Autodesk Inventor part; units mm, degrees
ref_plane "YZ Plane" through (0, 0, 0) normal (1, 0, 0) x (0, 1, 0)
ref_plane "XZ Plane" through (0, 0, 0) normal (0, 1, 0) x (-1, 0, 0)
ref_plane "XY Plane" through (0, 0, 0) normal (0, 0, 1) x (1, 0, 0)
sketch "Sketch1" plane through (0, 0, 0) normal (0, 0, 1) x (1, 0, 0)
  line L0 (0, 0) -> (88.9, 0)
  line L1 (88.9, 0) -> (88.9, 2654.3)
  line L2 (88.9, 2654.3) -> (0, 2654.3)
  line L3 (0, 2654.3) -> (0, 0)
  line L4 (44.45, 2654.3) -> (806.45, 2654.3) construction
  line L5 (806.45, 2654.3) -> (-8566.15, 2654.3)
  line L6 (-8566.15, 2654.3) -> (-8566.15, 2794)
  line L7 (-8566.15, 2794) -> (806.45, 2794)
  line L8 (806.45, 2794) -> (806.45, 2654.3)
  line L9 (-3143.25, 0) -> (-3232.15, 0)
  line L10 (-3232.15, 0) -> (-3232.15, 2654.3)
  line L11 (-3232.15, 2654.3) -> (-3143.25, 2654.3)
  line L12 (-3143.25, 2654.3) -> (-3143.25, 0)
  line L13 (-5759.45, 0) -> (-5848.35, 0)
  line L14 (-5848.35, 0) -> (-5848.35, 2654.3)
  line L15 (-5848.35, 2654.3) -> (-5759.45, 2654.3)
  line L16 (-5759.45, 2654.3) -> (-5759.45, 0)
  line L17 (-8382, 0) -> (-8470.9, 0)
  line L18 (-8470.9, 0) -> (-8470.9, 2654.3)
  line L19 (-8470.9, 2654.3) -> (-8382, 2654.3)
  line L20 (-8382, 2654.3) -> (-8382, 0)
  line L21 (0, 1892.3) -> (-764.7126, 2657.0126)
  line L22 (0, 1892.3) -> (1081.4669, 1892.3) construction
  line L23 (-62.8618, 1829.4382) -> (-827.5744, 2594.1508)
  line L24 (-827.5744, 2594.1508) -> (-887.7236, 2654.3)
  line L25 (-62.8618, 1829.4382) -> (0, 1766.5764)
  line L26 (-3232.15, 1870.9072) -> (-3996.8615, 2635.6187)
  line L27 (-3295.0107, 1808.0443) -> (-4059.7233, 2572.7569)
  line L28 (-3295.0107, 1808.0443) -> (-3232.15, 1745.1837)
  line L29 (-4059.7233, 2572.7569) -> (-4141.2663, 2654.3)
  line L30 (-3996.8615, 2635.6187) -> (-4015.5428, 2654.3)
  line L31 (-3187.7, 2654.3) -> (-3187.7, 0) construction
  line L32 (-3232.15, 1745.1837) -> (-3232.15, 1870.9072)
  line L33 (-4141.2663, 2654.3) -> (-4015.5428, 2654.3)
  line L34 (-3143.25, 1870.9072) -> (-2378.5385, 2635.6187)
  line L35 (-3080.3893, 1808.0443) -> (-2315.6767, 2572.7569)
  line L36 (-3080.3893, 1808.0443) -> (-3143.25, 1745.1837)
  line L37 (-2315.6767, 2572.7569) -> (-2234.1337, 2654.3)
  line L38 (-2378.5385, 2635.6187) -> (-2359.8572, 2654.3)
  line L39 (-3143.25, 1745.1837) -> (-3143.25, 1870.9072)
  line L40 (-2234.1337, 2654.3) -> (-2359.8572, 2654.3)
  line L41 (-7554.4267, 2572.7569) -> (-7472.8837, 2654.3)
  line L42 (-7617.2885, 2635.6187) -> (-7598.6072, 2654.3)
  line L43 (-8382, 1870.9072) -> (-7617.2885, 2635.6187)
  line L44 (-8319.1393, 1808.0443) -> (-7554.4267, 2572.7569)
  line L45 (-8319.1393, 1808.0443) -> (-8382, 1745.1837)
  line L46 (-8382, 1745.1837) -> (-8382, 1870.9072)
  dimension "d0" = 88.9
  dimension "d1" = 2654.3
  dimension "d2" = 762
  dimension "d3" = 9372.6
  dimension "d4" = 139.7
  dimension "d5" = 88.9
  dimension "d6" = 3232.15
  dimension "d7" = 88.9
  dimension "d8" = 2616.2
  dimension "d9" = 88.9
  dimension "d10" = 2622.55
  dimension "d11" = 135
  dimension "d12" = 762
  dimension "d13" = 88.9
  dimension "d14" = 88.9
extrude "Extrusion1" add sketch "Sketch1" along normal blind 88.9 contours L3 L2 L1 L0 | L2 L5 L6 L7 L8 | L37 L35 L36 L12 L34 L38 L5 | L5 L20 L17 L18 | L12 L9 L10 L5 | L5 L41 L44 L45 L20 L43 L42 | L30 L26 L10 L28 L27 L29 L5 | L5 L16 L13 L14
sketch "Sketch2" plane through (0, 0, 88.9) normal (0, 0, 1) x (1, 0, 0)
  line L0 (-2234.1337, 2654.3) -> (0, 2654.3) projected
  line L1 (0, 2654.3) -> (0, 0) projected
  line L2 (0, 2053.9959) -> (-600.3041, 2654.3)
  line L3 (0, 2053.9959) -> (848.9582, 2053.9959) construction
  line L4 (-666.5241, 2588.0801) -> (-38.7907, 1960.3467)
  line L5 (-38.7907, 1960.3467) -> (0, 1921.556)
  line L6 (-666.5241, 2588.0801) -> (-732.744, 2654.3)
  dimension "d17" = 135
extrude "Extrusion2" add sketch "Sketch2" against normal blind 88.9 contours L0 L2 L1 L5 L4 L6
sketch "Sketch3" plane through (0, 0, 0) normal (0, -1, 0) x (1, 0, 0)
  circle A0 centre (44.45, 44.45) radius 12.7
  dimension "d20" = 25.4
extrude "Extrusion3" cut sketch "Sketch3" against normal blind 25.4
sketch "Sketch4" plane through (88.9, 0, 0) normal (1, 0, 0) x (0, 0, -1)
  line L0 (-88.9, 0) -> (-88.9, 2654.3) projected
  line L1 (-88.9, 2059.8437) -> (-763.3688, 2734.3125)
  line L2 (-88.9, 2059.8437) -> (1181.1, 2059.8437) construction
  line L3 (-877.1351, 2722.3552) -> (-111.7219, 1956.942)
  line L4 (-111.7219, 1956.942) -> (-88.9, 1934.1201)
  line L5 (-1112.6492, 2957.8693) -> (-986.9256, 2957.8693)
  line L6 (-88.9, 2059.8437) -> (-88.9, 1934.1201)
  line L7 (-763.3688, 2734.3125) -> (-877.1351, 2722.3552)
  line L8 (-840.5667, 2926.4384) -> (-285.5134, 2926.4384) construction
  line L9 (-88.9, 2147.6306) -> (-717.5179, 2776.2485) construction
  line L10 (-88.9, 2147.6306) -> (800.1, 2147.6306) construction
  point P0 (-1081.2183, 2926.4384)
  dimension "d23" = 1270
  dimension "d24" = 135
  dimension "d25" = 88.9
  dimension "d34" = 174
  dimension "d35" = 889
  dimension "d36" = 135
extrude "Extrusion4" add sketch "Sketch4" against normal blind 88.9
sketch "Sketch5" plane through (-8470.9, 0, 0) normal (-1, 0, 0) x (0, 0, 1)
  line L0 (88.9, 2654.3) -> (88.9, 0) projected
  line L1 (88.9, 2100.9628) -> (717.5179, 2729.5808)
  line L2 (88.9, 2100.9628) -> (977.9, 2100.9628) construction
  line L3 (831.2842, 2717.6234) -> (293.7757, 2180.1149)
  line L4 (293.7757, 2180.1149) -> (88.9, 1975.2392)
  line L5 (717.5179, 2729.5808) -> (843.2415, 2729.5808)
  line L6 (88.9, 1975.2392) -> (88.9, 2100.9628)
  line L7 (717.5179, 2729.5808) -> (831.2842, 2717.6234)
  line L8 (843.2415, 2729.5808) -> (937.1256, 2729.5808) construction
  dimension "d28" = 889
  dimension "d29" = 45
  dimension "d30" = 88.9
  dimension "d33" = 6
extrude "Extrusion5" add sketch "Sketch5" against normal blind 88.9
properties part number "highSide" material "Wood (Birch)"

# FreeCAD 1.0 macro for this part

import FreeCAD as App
import Part
import Sketcher
Q = App.Units.Quantity

doc = App.newDocument("Part")
params = doc.addObject("Spreadsheet::Sheet", "Params")
for row, (alias, value) in enumerate([
    ("sketch1_width", "369 in"),
    ("sketch1_width2", "3.5 in"),
    ("sketch1_height", "104.5 in"),
    ("sketch1_height2", "5.5 in"),
    ("sketch1_width3", "28.25 in"),
    ("pad1_length", "3.5 in"),
    ("pad2_length", "3.5 in"),
    ("sketch3_diameter", "1 in"),
    ("pocket1_length", "1 in"),
    ("pad3_length", "3.5 in"),
    ("sketch5_length", "35 in"),
    ("pad4_length", "3.5 in"),
], start=1):
    params.set(f"A{row}", alias)
    params.set(f"B{row}", "=" + value)
    params.setAlias(f"B{row}", alias)

body = doc.addObject("PartDesign::Body", "Body")

# Sketch on XY plane
sketch1 = body.newObject("Sketcher::SketchObject", "Sketch")
sketch1.AttachmentSupport = (doc.getObject("XY_Plane"), [""])
sketch1.MapMode = "FlatFace"
sketch1.addGeometry(Part.LineSegment(App.Vector(0, 0, 0), App.Vector(89, 0, 0)), False)
sketch1.addGeometry(Part.LineSegment(App.Vector(89, 0, 0), App.Vector(89, 2654, 0)), False)
sketch1.addGeometry(Part.LineSegment(App.Vector(89, 2654, 0), App.Vector(806, 2654, 0)), False)
sketch1.addGeometry(Part.LineSegment(App.Vector(806, 2654, 0), App.Vector(806, 2794, 0)), False)
sketch1.addGeometry(Part.LineSegment(App.Vector(806, 2794, 0), App.Vector(-8566, 2794, 0)), False)
sketch1.addGeometry(Part.LineSegment(App.Vector(-8566, 2794, 0), App.Vector(-8566, 2654, 0)), False)
sketch1.addGeometry(Part.LineSegment(App.Vector(-8566, 2654, 0), App.Vector(-8471, 2654, 0)), False)
sketch1.addGeometry(Part.LineSegment(App.Vector(-8471, 2654, 0), App.Vector(-8471, 0, 0)), False)
sketch1.addGeometry(Part.LineSegment(App.Vector(-8471, 0, 0), App.Vector(-8382, 0, 0)), False)
sketch1.addGeometry(Part.LineSegment(App.Vector(-8382, 0, 0), App.Vector(-8382, 1745, 0)), False)
sketch1.addGeometry(Part.LineSegment(App.Vector(-8382, 1745, 0), App.Vector(-8319, 1808, 0)), False)
sketch1.addGeometry(Part.LineSegment(App.Vector(-8319, 1808, 0), App.Vector(-7554, 2573, 0)), False)
sketch1.addGeometry(Part.LineSegment(App.Vector(-7554, 2573, 0), App.Vector(-7473, 2654, 0)), False)
sketch1.addGeometry(Part.LineSegment(App.Vector(-7473, 2654, 0), App.Vector(-5848, 2654, 0)), False)
sketch1.addGeometry(Part.LineSegment(App.Vector(-5848, 2654, 0), App.Vector(-5848, 0, 0)), False)
sketch1.addGeometry(Part.LineSegment(App.Vector(-5848, 0, 0), App.Vector(-5759, 0, 0)), False)
sketch1.addGeometry(Part.LineSegment(App.Vector(-5759, 0, 0), App.Vector(-5759, 2654, 0)), False)
sketch1.addGeometry(Part.LineSegment(App.Vector(-5759, 2654, 0), App.Vector(-4141, 2654, 0)), False)
sketch1.addGeometry(Part.LineSegment(App.Vector(-4141, 2654, 0), App.Vector(-4060, 2573, 0)), False)
sketch1.addGeometry(Part.LineSegment(App.Vector(-4060, 2573, 0), App.Vector(-3295, 1808, 0)), False)
sketch1.addGeometry(Part.LineSegment(App.Vector(-3295, 1808, 0), App.Vector(-3232, 1745, 0)), False)
sketch1.addGeometry(Part.LineSegment(App.Vector(-3232, 1745, 0), App.Vector(-3232, 0, 0)), False)
sketch1.addGeometry(Part.LineSegment(App.Vector(-3232, 0, 0), App.Vector(-3143, 0, 0)), False)
sketch1.addGeometry(Part.LineSegment(App.Vector(-3143, 0, 0), App.Vector(-3143, 1745, 0)), False)
sketch1.addGeometry(Part.LineSegment(App.Vector(-3143, 1745, 0), App.Vector(-3080, 1808, 0)), False)
sketch1.addGeometry(Part.LineSegment(App.Vector(-3080, 1808, 0), App.Vector(-2316, 2573, 0)), False)
sketch1.addGeometry(Part.LineSegment(App.Vector(-2316, 2573, 0), App.Vector(-2234, 2654, 0)), False)
sketch1.addGeometry(Part.LineSegment(App.Vector(-2234, 2654, 0), App.Vector(0, 2654, 0)), False)
sketch1.addGeometry(Part.LineSegment(App.Vector(0, 2654, 0), App.Vector(0, 0, 0)), False)
sketch1.addGeometry(Part.LineSegment(App.Vector(-3143, 2654, 0), App.Vector(-2360, 2654, 0)), False)
sketch1.addGeometry(Part.LineSegment(App.Vector(-2360, 2654, 0), App.Vector(-3143, 1871, 0)), False)
sketch1.addGeometry(Part.LineSegment(App.Vector(-3143, 1871, 0), App.Vector(-3143, 2654, 0)), False)
sketch1.addGeometry(Part.LineSegment(App.Vector(-4016, 2654, 0), App.Vector(-3232, 2654, 0)), False)
sketch1.addGeometry(Part.LineSegment(App.Vector(-3232, 2654, 0), App.Vector(-3232, 1871, 0)), False)
sketch1.addGeometry(Part.LineSegment(App.Vector(-3232, 1871, 0), App.Vector(-4016, 2654, 0)), False)
sketch1.addGeometry(Part.LineSegment(App.Vector(-8382, 2654, 0), App.Vector(-7599, 2654, 0)), False)
sketch1.addGeometry(Part.LineSegment(App.Vector(-7599, 2654, 0), App.Vector(-8382, 1871, 0)), False)
sketch1.addGeometry(Part.LineSegment(App.Vector(-8382, 1871, 0), App.Vector(-8382, 2654, 0)), False)
sketch1.addConstraint(Sketcher.Constraint("Coincident", 0, 2, 1, 1))
sketch1.addConstraint(Sketcher.Constraint("Coincident", 1, 2, 2, 1))
sketch1.addConstraint(Sketcher.Constraint("Coincident", 2, 2, 3, 1))
sketch1.addConstraint(Sketcher.Constraint("Coincident", 3, 2, 4, 1))
sketch1.addConstraint(Sketcher.Constraint("Coincident", 4, 2, 5, 1))
sketch1.addConstraint(Sketcher.Constraint("Coincident", 5, 2, 6, 1))
sketch1.addConstraint(Sketcher.Constraint("Coincident", 6, 2, 7, 1))
sketch1.addConstraint(Sketcher.Constraint("Coincident", 7, 2, 8, 1))
sketch1.addConstraint(Sketcher.Constraint("Coincident", 8, 2, 9, 1))
sketch1.addConstraint(Sketcher.Constraint("Coincident", 9, 2, 10, 1))
sketch1.addConstraint(Sketcher.Constraint("Coincident", 10, 2, 11, 1))
sketch1.addConstraint(Sketcher.Constraint("Coincident", 11, 2, 12, 1))
sketch1.addConstraint(Sketcher.Constraint("Coincident", 12, 2, 13, 1))
sketch1.addConstraint(Sketcher.Constraint("Coincident", 13, 2, 14, 1))
sketch1.addConstraint(Sketcher.Constraint("Coincident", 14, 2, 15, 1))
sketch1.addConstraint(Sketcher.Constraint("Coincident", 15, 2, 16, 1))
sketch1.addConstraint(Sketcher.Constraint("Coincident", 16, 2, 17, 1))
sketch1.addConstraint(Sketcher.Constraint("Coincident", 17, 2, 18, 1))
sketch1.addConstraint(Sketcher.Constraint("Coincident", 18, 2, 19, 1))
sketch1.addConstraint(Sketcher.Constraint("Coincident", 19, 2, 20, 1))
sketch1.addConstraint(Sketcher.Constraint("Coincident", 20, 2, 21, 1))
sketch1.addConstraint(Sketcher.Constraint("Coincident", 21, 2, 22, 1))
sketch1.addConstraint(Sketcher.Constraint("Coincident", 22, 2, 23, 1))
sketch1.addConstraint(Sketcher.Constraint("Coincident", 23, 2, 24, 1))
sketch1.addConstraint(Sketcher.Constraint("Coincident", 24, 2, 25, 1))
sketch1.addConstraint(Sketcher.Constraint("Coincident", 25, 2, 26, 1))
sketch1.addConstraint(Sketcher.Constraint("Coincident", 26, 2, 27, 1))
sketch1.addConstraint(Sketcher.Constraint("Coincident", 27, 2, 28, 1))
sketch1.addConstraint(Sketcher.Constraint("Coincident", 28, 2, 0, 1))
sketch1.addConstraint(Sketcher.Constraint("Coincident", 29, 2, 30, 1))
sketch1.addConstraint(Sketcher.Constraint("Coincident", 30, 2, 31, 1))
sketch1.addConstraint(Sketcher.Constraint("Coincident", 31, 2, 29, 1))
sketch1.addConstraint(Sketcher.Constraint("Coincident", 32, 2, 33, 1))
sketch1.addConstraint(Sketcher.Constraint("Coincident", 33, 2, 34, 1))
sketch1.addConstraint(Sketcher.Constraint("Coincident", 34, 2, 32, 1))
sketch1.addConstraint(Sketcher.Constraint("Coincident", 35, 2, 36, 1))
sketch1.addConstraint(Sketcher.Constraint("Coincident", 36, 2, 37, 1))
sketch1.addConstraint(Sketcher.Constraint("Coincident", 37, 2, 35, 1))
sketch1.addConstraint(Sketcher.Constraint("Horizontal", 0))
sketch1.addConstraint(Sketcher.Constraint("Vertical", 1))
sketch1.addConstraint(Sketcher.Constraint("Horizontal", 2))
sketch1.addConstraint(Sketcher.Constraint("Vertical", 3))
sketch1.addConstraint(Sketcher.Constraint("Horizontal", 4))
sketch1.addConstraint(Sketcher.Constraint("Vertical", 5))
sketch1.addConstraint(Sketcher.Constraint("Horizontal", 6))
sketch1.addConstraint(Sketcher.Constraint("Vertical", 7))
sketch1.addConstraint(Sketcher.Constraint("Horizontal", 8))
sketch1.addConstraint(Sketcher.Constraint("Vertical", 9))
sketch1.addConstraint(Sketcher.Constraint("Horizontal", 13))
sketch1.addConstraint(Sketcher.Constraint("Vertical", 14))
sketch1.addConstraint(Sketcher.Constraint("Horizontal", 15))
sketch1.addConstraint(Sketcher.Constraint("Vertical", 16))
sketch1.addConstraint(Sketcher.Constraint("Horizontal", 17))
sketch1.addConstraint(Sketcher.Constraint("Vertical", 21))
sketch1.addConstraint(Sketcher.Constraint("Horizontal", 22))
sketch1.addConstraint(Sketcher.Constraint("Vertical", 23))
sketch1.addConstraint(Sketcher.Constraint("Horizontal", 27))
sketch1.addConstraint(Sketcher.Constraint("Vertical", 28))
sketch1.addConstraint(Sketcher.Constraint("Horizontal", 29))
sketch1.addConstraint(Sketcher.Constraint("Vertical", 31))
sketch1.addConstraint(Sketcher.Constraint("Horizontal", 32))
sketch1.addConstraint(Sketcher.Constraint("Vertical", 33))
sketch1.addConstraint(Sketcher.Constraint("Horizontal", 35))
sketch1.addConstraint(Sketcher.Constraint("Vertical", 37))
sketch1.addConstraint(Sketcher.Constraint("Coincident", 28, 2, -1, 1))
sketch1.addConstraint(Sketcher.Constraint("PointOnObject", 7, 2, -1))
sketch1.addConstraint(Sketcher.Constraint("PointOnObject", 14, 2, -1))
sketch1.addConstraint(Sketcher.Constraint("PointOnObject", 21, 2, -1))
sketch1.addConstraint(Sketcher.Constraint("Parallel", 10, 11))
sketch1.addConstraint(Sketcher.Constraint("Parallel", 11, 12))
sketch1.addConstraint(Sketcher.Constraint("Perpendicular", 12, 18))
sketch1.addConstraint(Sketcher.Constraint("Parallel", 18, 19))
sketch1.addConstraint(Sketcher.Constraint("Parallel", 19, 20))
sketch1.addConstraint(Sketcher.Constraint("Perpendicular", 20, 24))
sketch1.addConstraint(Sketcher.Constraint("Parallel", 24, 25))
sketch1.addConstraint(Sketcher.Constraint("Parallel", 25, 26))
sketch1.addConstraint(Sketcher.Constraint("Parallel", 26, 30))
sketch1.addConstraint(Sketcher.Constraint("Perpendicular", 30, 34))
sketch1.addConstraint(Sketcher.Constraint("Perpendicular", 34, 36))
sketch1.addConstraint(Sketcher.Constraint("Horizontal", 2, 2, 5, 2))
sketch1.addConstraint(Sketcher.Constraint("Horizontal", 6, 2, 12, 2))
sketch1.addConstraint(Sketcher.Constraint("Horizontal", 13, 2, 16, 2))
sketch1.addConstraint(Sketcher.Constraint("Horizontal", 11, 2, 18, 2))
sketch1.addConstraint(Sketcher.Constraint("Horizontal", 10, 2, 19, 2))
sketch1.addConstraint(Sketcher.Constraint("Horizontal", 9, 2, 20, 2))
sketch1.addConstraint(Sketcher.Constraint("Horizontal", 20, 2, 23, 2))
sketch1.addConstraint(Sketcher.Constraint("Horizontal", 19, 2, 24, 2))
sketch1.addConstraint(Sketcher.Constraint("Horizontal", 18, 2, 25, 2))
sketch1.addConstraint(Sketcher.Constraint("Horizontal", 17, 2, 26, 2))
sketch1.addConstraint(Sketcher.Constraint("Horizontal", 27, 2, 29, 2))
sketch1.addConstraint(Sketcher.Constraint("Horizontal", 31, 2, 32, 2))
sketch1.addConstraint(Sketcher.Constraint("Horizontal", 30, 2, 33, 2))
sketch1.addConstraint(Sketcher.Constraint("Horizontal", 34, 2, 35, 2))
sketch1.addConstraint(Sketcher.Constraint("Horizontal", 33, 2, 36, 2))
sketch1.addConstraint(Sketcher.Constraint("Vertical", 23, 2, 30, 2))
sketch1.addConstraint(Sketcher.Constraint("Vertical", 21, 2, 32, 2))
sketch1.addConstraint(Sketcher.Constraint("Vertical", 9, 2, 36, 2))
sketch1.addConstraint(Sketcher.Constraint("Equal", 0, 8))
sketch1.addConstraint(Sketcher.Constraint("Equal", 8, 15))
sketch1.addConstraint(Sketcher.Constraint("Equal", 15, 22))
sketch1.addConstraint(Sketcher.Constraint("Equal", 29, 32))
sketch1.addConstraint(Sketcher.Constraint("DistanceX", 4, 2, 4, 1, Q("369 in")))
sketch1.addConstraint(Sketcher.Constraint("DistanceX", 0, 1, 0, 2, Q("3.5 in")))
sketch1.addConstraint(Sketcher.Constraint("DistanceY", 1, 1, 1, 2, Q("104.5 in")))
sketch1.addConstraint(Sketcher.Constraint("DistanceY", 3, 1, 3, 2, Q("5.5 in")))
sketch1.addConstraint(Sketcher.Constraint("DistanceX", 13, 2, 20, 2, Q("103 in")))
sketch1.addConstraint(Sketcher.Constraint("DistanceX", 20, 2, -1, 1, Q("127.25 in")))
sketch1.addConstraint(Sketcher.Constraint("DistanceX", 6, 2, 13, 2, Q("103.25 in")))
sketch1.addConstraint(Sketcher.Constraint("DistanceX", 2, 1, 2, 2, Q("28.25 in")))
sketch1.addConstraint(Sketcher.Constraint("Distance", 30, Q("43.6175 in")))
sketch1.addConstraint(Sketcher.Constraint("DistanceX", 13, 1, 13, 2, Q("1624.5337 mm")))
sketch1.addConstraint(Sketcher.Constraint("DistanceX", 10, 2, 11, 2, Q("30.1068 in")))
sketch1.addConstraint(Sketcher.Constraint("DistanceX", 17, 2, 24, 2, Q("41.7668 in")))
sketch1.setExpression("Constraints[101]", "Params.sketch1_width")
sketch1.setExpression("Constraints[102]", "Params.sketch1_width2")
sketch1.setExpression("Constraints[103]", "Params.sketch1_height")
sketch1.setExpression("Constraints[104]", "Params.sketch1_height2")
sketch1.setExpression("Constraints[108]", "Params.sketch1_width3")
pad1 = body.newObject("PartDesign::Pad", "Pad")
pad1.Profile = sketch1
pad1.setExpression("Length", "Params.pad1_length")

# Sketch on XY plane
sketch2 = body.newObject("Sketcher::SketchObject", "Sketch001")
sketch2.AttachmentSupport = (doc.getObject("XY_Plane"), [""])
sketch2.MapMode = "FlatFace"
sketch2.AttachmentOffset = App.Placement(App.Vector(0, 0, 3.5 * 25.4), App.Rotation())
sketch2.addGeometry(Part.LineSegment(App.Vector(-600, 2654, 0), App.Vector(-733, 2654, 0)), False)
sketch2.addGeometry(Part.LineSegment(App.Vector(-733, 2654, 0), App.Vector(0, 1922, 0)), False)
sketch2.addGeometry(Part.LineSegment(App.Vector(0, 1922, 0), App.Vector(0, 2054, 0)), False)
sketch2.addGeometry(Part.LineSegment(App.Vector(0, 2054, 0), App.Vector(-600, 2654, 0)), False)
sketch2.addConstraint(Sketcher.Constraint("Coincident", 0, 2, 1, 1))
sketch2.addConstraint(Sketcher.Constraint("Coincident", 1, 2, 2, 1))
sketch2.addConstraint(Sketcher.Constraint("Coincident", 2, 2, 3, 1))
sketch2.addConstraint(Sketcher.Constraint("Coincident", 3, 2, 0, 1))
sketch2.addConstraint(Sketcher.Constraint("Horizontal", 0))
sketch2.addConstraint(Sketcher.Constraint("Vertical", 2))
sketch2.addConstraint(Sketcher.Constraint("PointOnObject", 1, 2, -2))
sketch2.addConstraint(Sketcher.Constraint("Parallel", 1, 3))
sketch2.addConstraint(Sketcher.Constraint("Equal", 0, 2))
sketch2.addConstraint(Sketcher.Constraint("DistanceY", -1, 1, 0, 2, Q("104.5 in")))
sketch2.addConstraint(Sketcher.Constraint("Distance", 1, Q("40.7975 in")))
sketch2.addConstraint(Sketcher.Constraint("DistanceX", 0, 2, 0, 1, Q("132.44 mm")))
pad2 = body.newObject("PartDesign::Pad", "Pad001")
pad2.Profile = sketch2
pad2.setExpression("Length", "Params.pad2_length")
pad2.Reversed = True

# Sketch on XZ plane
sketch3 = body.newObject("Sketcher::SketchObject", "Sketch002")
sketch3.AttachmentSupport = (doc.getObject("XZ_Plane"), [""])
sketch3.MapMode = "FlatFace"
sketch3.addGeometry(Part.Circle(App.Vector(44, 44, 0), App.Vector(0, 0, 1), 13), False)
sketch3.addConstraint(Sketcher.Constraint("Diameter", 0, Q("1 in")))
sketch3.addConstraint(Sketcher.Constraint("DistanceX", -1, 1, 0, 3, Q("1.75 in")))
sketch3.addConstraint(Sketcher.Constraint("DistanceY", -1, 1, 0, 3, Q("1.75 in")))
sketch3.setExpression("Constraints[0]", "Params.sketch3_diameter")
pocket1 = body.newObject("PartDesign::Pocket", "Pocket")
pocket1.Profile = sketch3
pocket1.setExpression("Length", "Params.pocket1_length")

# Sketch on YZ plane
sketch4 = body.newObject("Sketcher::SketchObject", "Sketch003")
sketch4.AttachmentSupport = (doc.getObject("YZ_Plane"), [""])
sketch4.MapMode = "FlatFace"
sketch4.AttachmentOffset = App.Placement(App.Vector(0, 0, 3.5 * 25.4), App.Rotation())
sketch4.addGeometry(Part.LineSegment(App.Vector(2722, 877, 0), App.Vector(1934, 89, 0)), False)
sketch4.addGeometry(Part.LineSegment(App.Vector(1934, 89, 0), App.Vector(2060, 89, 0)), False)
sketch4.addGeometry(Part.LineSegment(App.Vector(2060, 89, 0), App.Vector(2734, 763, 0)), False)
sketch4.addGeometry(Part.LineSegment(App.Vector(2734, 763, 0), App.Vector(2722, 877, 0)), False)
sketch4.addConstraint(Sketcher.Constraint("Coincident", 0, 2, 1, 1))
sketch4.addConstraint(Sketcher.Constraint("Coincident", 1, 2, 2, 1))
sketch4.addConstraint(Sketcher.Constraint("Coincident", 2, 2, 3, 1))
sketch4.addConstraint(Sketcher.Constraint("Coincident", 3, 2, 0, 1))
sketch4.addConstraint(Sketcher.Constraint("Horizontal", 1))
sketch4.addConstraint(Sketcher.Constraint("Parallel", 0, 2))
sketch4.addConstraint(Sketcher.Constraint("Angle", 0, Q("-135 deg")))
sketch4.addConstraint(Sketcher.Constraint("DistanceY", -1, 1, 0, 2, Q("3.5 in")))
sketch4.addConstraint(Sketcher.Constraint("Angle", 3, Q("96 deg")))
sketch4.addConstraint(Sketcher.Constraint("DistanceY", 2, 2, 3, 2, Q("4.479 in")))
sketch4.addConstraint(Sketcher.Constraint("DistanceX", -1, 1, 1, 2, Q("81.0962 in")))
sketch4.addConstraint(Sketcher.Constraint("DistanceX", -1, 1, 2, 2, Q("107.6501 in")))
pad3 = body.newObject("PartDesign::Pad", "Pad002")
pad3.Profile = sketch4
pad3.setExpression("Length", "Params.pad3_length")
pad3.Reversed = True

# Sketch on YZ plane
sketch5 = body.newObject("Sketcher::SketchObject", "Sketch004")
sketch5.AttachmentSupport = (doc.getObject("YZ_Plane"), [""])
sketch5.MapMode = "FlatFace"
sketch5.AttachmentOffset = App.Placement(App.Vector(0, 0, -333.5 * 25.4), App.Rotation())
sketch5.addGeometry(Part.LineSegment(App.Vector(2730, 718, 0), App.Vector(2101, 89, 0)), False)
sketch5.addGeometry(Part.LineSegment(App.Vector(2101, 89, 0), App.Vector(1975, 89, 0)), False)
sketch5.addGeometry(Part.LineSegment(App.Vector(1975, 89, 0), App.Vector(2718, 831, 0)), False)
sketch5.addGeometry(Part.LineSegment(App.Vector(2718, 831, 0), App.Vector(2730, 718, 0)), False)
sketch5.addConstraint(Sketcher.Constraint("Coincident", 0, 2, 1, 1))
sketch5.addConstraint(Sketcher.Constraint("Coincident", 1, 2, 2, 1))
sketch5.addConstraint(Sketcher.Constraint("Coincident", 2, 2, 3, 1))
sketch5.addConstraint(Sketcher.Constraint("Coincident", 3, 2, 0, 1))
sketch5.addConstraint(Sketcher.Constraint("Horizontal", 1))
sketch5.addConstraint(Sketcher.Constraint("Parallel", 0, 2))
sketch5.addConstraint(Sketcher.Constraint("Distance", 0, Q("35 in")))
sketch5.addConstraint(Sketcher.Constraint("Angle", 2, Q("45 deg")))
sketch5.addConstraint(Sketcher.Constraint("DistanceY", -1, 1, 0, 2, Q("3.5 in")))
sketch5.addConstraint(Sketcher.Constraint("Angle", 3, Q("-84 deg")))
sketch5.addConstraint(Sketcher.Constraint("DistanceY", 3, 2, 2, 2, Q("4.479 in")))
sketch5.addConstraint(Sketcher.Constraint("DistanceX", -1, 1, 3, 2, Q("107.4638 in")))
sketch5.setExpression("Constraints[6]", "Params.sketch5_length")
pad4 = body.newObject("PartDesign::Pad", "Pad003")
pad4.Profile = sketch5
pad4.setExpression("Length", "Params.pad4_length")

doc.recompute()
